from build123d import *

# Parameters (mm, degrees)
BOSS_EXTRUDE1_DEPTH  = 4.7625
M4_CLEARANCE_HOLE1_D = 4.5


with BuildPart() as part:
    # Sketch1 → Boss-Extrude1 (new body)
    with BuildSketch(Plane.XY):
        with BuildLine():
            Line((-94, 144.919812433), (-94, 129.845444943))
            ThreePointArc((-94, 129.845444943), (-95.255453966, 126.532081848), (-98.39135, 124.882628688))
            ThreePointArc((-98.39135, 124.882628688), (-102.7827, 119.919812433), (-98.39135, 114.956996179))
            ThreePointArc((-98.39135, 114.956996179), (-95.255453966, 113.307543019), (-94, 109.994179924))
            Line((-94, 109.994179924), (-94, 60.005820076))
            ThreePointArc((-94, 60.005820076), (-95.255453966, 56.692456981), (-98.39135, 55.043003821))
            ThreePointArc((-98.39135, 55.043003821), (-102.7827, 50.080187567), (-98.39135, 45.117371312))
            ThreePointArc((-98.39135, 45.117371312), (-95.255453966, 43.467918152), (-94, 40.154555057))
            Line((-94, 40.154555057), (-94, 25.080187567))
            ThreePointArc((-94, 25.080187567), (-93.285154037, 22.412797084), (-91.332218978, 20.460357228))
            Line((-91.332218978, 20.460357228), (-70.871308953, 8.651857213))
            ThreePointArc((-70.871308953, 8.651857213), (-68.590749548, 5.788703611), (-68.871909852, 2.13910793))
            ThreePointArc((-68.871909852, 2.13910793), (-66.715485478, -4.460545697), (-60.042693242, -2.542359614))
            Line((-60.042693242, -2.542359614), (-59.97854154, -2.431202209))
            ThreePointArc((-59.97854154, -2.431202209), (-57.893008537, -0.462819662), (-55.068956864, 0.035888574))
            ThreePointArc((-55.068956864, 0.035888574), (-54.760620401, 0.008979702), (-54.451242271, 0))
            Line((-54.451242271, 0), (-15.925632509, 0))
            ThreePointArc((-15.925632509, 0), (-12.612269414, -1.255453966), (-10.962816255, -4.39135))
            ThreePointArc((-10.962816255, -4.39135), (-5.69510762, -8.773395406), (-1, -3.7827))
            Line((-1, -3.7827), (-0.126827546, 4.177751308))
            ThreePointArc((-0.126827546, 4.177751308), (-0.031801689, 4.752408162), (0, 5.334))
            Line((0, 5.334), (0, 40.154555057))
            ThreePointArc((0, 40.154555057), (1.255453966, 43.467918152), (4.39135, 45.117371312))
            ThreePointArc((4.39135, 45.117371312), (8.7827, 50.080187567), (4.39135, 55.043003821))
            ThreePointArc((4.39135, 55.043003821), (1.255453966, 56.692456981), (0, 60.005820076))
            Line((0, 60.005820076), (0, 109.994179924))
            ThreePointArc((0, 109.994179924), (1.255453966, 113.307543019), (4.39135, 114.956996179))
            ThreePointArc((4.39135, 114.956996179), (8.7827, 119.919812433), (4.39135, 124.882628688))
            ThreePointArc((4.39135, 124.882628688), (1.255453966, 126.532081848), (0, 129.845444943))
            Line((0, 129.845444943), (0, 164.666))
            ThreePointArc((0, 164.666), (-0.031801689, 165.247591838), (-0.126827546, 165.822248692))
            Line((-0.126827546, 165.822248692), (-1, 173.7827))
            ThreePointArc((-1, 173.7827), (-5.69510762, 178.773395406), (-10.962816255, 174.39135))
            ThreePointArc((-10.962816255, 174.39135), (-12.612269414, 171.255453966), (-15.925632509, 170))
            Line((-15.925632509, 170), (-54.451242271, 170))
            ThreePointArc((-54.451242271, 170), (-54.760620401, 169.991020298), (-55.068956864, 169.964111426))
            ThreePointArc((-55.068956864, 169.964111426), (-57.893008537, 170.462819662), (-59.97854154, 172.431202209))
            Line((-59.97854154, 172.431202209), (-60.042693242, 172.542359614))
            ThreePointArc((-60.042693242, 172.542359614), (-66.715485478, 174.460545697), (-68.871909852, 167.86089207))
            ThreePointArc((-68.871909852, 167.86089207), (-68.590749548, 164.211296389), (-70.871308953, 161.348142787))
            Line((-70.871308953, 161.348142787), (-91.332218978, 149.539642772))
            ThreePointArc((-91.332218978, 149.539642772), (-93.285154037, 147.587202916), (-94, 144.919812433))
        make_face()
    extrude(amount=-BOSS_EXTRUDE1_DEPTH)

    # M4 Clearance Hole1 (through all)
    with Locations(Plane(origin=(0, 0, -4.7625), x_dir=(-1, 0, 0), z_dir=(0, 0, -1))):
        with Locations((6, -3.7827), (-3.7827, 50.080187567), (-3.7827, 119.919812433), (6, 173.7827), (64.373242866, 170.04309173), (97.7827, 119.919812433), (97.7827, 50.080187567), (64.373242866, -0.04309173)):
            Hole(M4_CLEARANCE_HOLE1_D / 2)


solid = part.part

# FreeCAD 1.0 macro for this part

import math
import FreeCAD as App
import Part
import Sketcher

doc = App.newDocument("Part")
body = doc.addObject("PartDesign::Body", "Body")

sketch1 = body.newObject("Sketcher::SketchObject", "Sketch")
sketch1.AttachmentSupport = (doc.getObject("XY_Plane"), [""])
sketch1.MapMode = "FlatFace"
sketch1.addGeometry([
    Part.LineSegment(App.Vector(-94, 144.92, 0), App.Vector(-94, 129.85, 0)),
    Part.ArcOfCircle(Part.Circle(App.Vector(-99, 129.85, 0), App.Vector(0, 0, 1), 5), math.radians(-83), math.radians(0)),
    Part.ArcOfCircle(Part.Circle(App.Vector(-97.78, 119.92, 0), App.Vector(0, 0, 1), 5), math.radians(97), math.radians(263)),
    Part.ArcOfCircle(Part.Circle(App.Vector(-99, 109.99, 0), App.Vector(0, 0, 1), 5), math.radians(0), math.radians(83)),
    Part.LineSegment(App.Vector(-94, 109.99, 0), App.Vector(-94, 60.01, 0)),
    Part.ArcOfCircle(Part.Circle(App.Vector(-99, 60.01, 0), App.Vector(0, 0, 1), 5), math.radians(-83), math.radians(0)),
    Part.ArcOfCircle(Part.Circle(App.Vector(-97.78, 50.08, 0), App.Vector(0, 0, 1), 5), math.radians(97), math.radians(263)),
    Part.ArcOfCircle(Part.Circle(App.Vector(-99, 40.15, 0), App.Vector(0, 0, 1), 5), math.radians(0), math.radians(83)),
    Part.LineSegment(App.Vector(-94, 40.15, 0), App.Vector(-94, 25.08, 0)),
    Part.ArcOfCircle(Part.Circle(App.Vector(-88.67, 25.08, 0), App.Vector(0, 0, 1), 5.33), math.radians(180), math.radians(240)),
    Part.LineSegment(App.Vector(-91.33, 20.46, 0), App.Vector(-70.87, 8.65, 0)),
    Part.ArcOfCircle(Part.Circle(App.Vector(-73.37, 4.32, 0), App.Vector(0, 0, 1), 5), math.radians(-26), math.radians(60)),
    Part.ArcOfCircle(Part.Circle(App.Vector(-64.37, -0.04, 0), App.Vector(0, 0, 1), 5), math.radians(154), math.radians(330)),
    Part.LineSegment(App.Vector(-60.04, -2.54, 0), App.Vector(-59.98, -2.43, 0)),
    Part.ArcOfCircle(Part.Circle(App.Vector(-55.65, -4.93, 0), App.Vector(0, 0, 1), 5), math.radians(83), math.radians(150)),
    Part.ArcOfCircle(Part.Circle(App.Vector(-54.45, 5.33, 0), App.Vector(0, 0, 1), 5.33), math.radians(-96.65), math.radians(-90)),
    Part.LineSegment(App.Vector(-54.45, 0, 0), App.Vector(-15.93, 0, 0)),
    Part.ArcOfCircle(Part.Circle(App.Vector(-15.93, -5, 0), App.Vector(0, 0, 1), 5), math.radians(7), math.radians(90)),
    Part.ArcOfCircle(Part.Circle(App.Vector(-6, -3.78, 0), App.Vector(0, 0, 1), 5), math.radians(-173), math.radians(0)),
    Part.LineSegment(App.Vector(-1, -3.78, 0), App.Vector(-0.13, 4.18, 0)),
    Part.ArcOfCircle(Part.Circle(App.Vector(-5.33, 5.33, 0), App.Vector(0, 0, 1), 5.33), math.radians(-12.52), math.radians(0)),
    Part.LineSegment(App.Vector(0, 5.33, 0), App.Vector(0, 40.15, 0)),
    Part.ArcOfCircle(Part.Circle(App.Vector(5, 40.15, 0), App.Vector(0, 0, 1), 5), math.radians(97), math.radians(180)),
    Part.ArcOfCircle(Part.Circle(App.Vector(3.78, 50.08, 0), App.Vector(0, 0, 1), 5), math.radians(-83), math.radians(83)),
    Part.ArcOfCircle(Part.Circle(App.Vector(5, 60.01, 0), App.Vector(0, 0, 1), 5), math.radians(180), math.radians(263)),
    Part.LineSegment(App.Vector(0, 60.01, 0), App.Vector(0, 109.99, 0)),
    Part.ArcOfCircle(Part.Circle(App.Vector(5, 109.99, 0), App.Vector(0, 0, 1), 5), math.radians(97), math.radians(180)),
    Part.ArcOfCircle(Part.Circle(App.Vector(3.78, 119.92, 0), App.Vector(0, 0, 1), 5), math.radians(-83), math.radians(83)),
    Part.ArcOfCircle(Part.Circle(App.Vector(5, 129.85, 0), App.Vector(0, 0, 1), 5), math.radians(180), math.radians(263)),
    Part.LineSegment(App.Vector(0, 129.85, 0), App.Vector(0, 164.67, 0)),
    Part.ArcOfCircle(Part.Circle(App.Vector(-5.33, 164.67, 0), App.Vector(0, 0, 1), 5.33), math.radians(0), math.radians(12.52)),
    Part.LineSegment(App.Vector(-0.13, 165.82, 0), App.Vector(-1, 173.78, 0)),
    Part.ArcOfCircle(Part.Circle(App.Vector(-6, 173.78, 0), App.Vector(0, 0, 1), 5), math.radians(0), math.radians(173)),
    Part.ArcOfCircle(Part.Circle(App.Vector(-15.93, 175, 0), App.Vector(0, 0, 1), 5), math.radians(-90), math.radians(-7)),
    Part.LineSegment(App.Vector(-15.93, 170, 0), App.Vector(-54.45, 170, 0)),
    Part.ArcOfCircle(Part.Circle(App.Vector(-54.45, 164.67, 0), App.Vector(0, 0, 1), 5.33), math.radians(90), math.radians(96.65)),
    Part.ArcOfCircle(Part.Circle(App.Vector(-55.65, 174.93, 0), App.Vector(0, 0, 1), 5), math.radians(-150), math.radians(-83)),
    Part.LineSegment(App.Vector(-59.98, 172.43, 0), App.Vector(-60.04, 172.54, 0)),
    Part.ArcOfCircle(Part.Circle(App.Vector(-64.37, 170.04, 0), App.Vector(0, 0, 1), 5), math.radians(30), math.radians(206)),
    Part.ArcOfCircle(Part.Circle(App.Vector(-73.37, 165.68, 0), App.Vector(0, 0, 1), 5), math.radians(-60), math.radians(26)),
    Part.LineSegment(App.Vector(-70.87, 161.35, 0), App.Vector(-91.33, 149.54, 0)),
    Part.ArcOfCircle(Part.Circle(App.Vector(-88.67, 144.92, 0), App.Vector(0, 0, 1), 5.33), math.radians(120), math.radians(180)),
], False)
sketch1.addConstraint([
    Sketcher.Constraint("Tangent", 0, 2, 1, 2),
    Sketcher.Constraint("Tangent", 1, 1, 2, 1),
    Sketcher.Constraint("Tangent", 2, 2, 3, 2),
    Sketcher.Constraint("Tangent", 3, 1, 4, 1),
    Sketcher.Constraint("Tangent", 4, 2, 5, 2),
    Sketcher.Constraint("Tangent", 5, 1, 6, 1),
    Sketcher.Constraint("Tangent", 6, 2, 7, 2),
    Sketcher.Constraint("Tangent", 7, 1, 8, 1),
    Sketcher.Constraint("Tangent", 8, 2, 9, 1),
    Sketcher.Constraint("Tangent", 9, 2, 10, 1),
    Sketcher.Constraint("Tangent", 10, 2, 11, 2),
    Sketcher.Constraint("Tangent", 11, 1, 12, 1),
    Sketcher.Constraint("Tangent", 12, 2, 13, 1),
    Sketcher.Constraint("Tangent", 13, 2, 14, 2),
    Sketcher.Constraint("Tangent", 14, 1, 15, 1),
    Sketcher.Constraint("Tangent", 15, 2, 16, 1),
    Sketcher.Constraint("Tangent", 16, 2, 17, 2),
    Sketcher.Constraint("Tangent", 17, 1, 18, 1),
    Sketcher.Constraint("Coincident", 18, 2, 19, 1),
    Sketcher.Constraint("Coincident", 19, 2, 20, 1),
    Sketcher.Constraint("Tangent", 20, 2, 21, 1),
    Sketcher.Constraint("Tangent", 21, 2, 22, 2),
    Sketcher.Constraint("Tangent", 22, 1, 23, 1),
    Sketcher.Constraint("Tangent", 23, 2, 24, 2),
    Sketcher.Constraint("Tangent", 24, 1, 25, 1),
    Sketcher.Constraint("Tangent", 25, 2, 26, 2),
    Sketcher.Constraint("Tangent", 26, 1, 27, 1),
    Sketcher.Constraint("Tangent", 27, 2, 28, 2),
    Sketcher.Constraint("Tangent", 28, 1, 29, 1),
    Sketcher.Constraint("Tangent", 29, 2, 30, 1),
    Sketcher.Constraint("Coincident", 30, 2, 31, 1),
    Sketcher.Constraint("Coincident", 31, 2, 32, 1),
    Sketcher.Constraint("Tangent", 32, 2, 33, 2),
    Sketcher.Constraint("Tangent", 33, 1, 34, 1),
    Sketcher.Constraint("Tangent", 34, 2, 35, 1),
    Sketcher.Constraint("Tangent", 35, 2, 36, 2),
    Sketcher.Constraint("Tangent", 36, 1, 37, 1),
    Sketcher.Constraint("Tangent", 37, 2, 38, 1),
    Sketcher.Constraint("Tangent", 38, 2, 39, 2),
    Sketcher.Constraint("Tangent", 39, 1, 40, 1),
    Sketcher.Constraint("Tangent", 40, 2, 41, 1),
    Sketcher.Constraint("Tangent", 41, 2, 0, 1),
    Sketcher.Constraint("Vertical", 0),
    Sketcher.Constraint("Vertical", 4),
    Sketcher.Constraint("Vertical", 8),
    Sketcher.Constraint("Horizontal", 16),
    Sketcher.Constraint("Vertical", 21),
    Sketcher.Constraint("Vertical", 25),
    Sketcher.Constraint("Vertical", 29),
    Sketcher.Constraint("Horizontal", 34),
    Sketcher.Constraint("Equal", 1, 2),
    Sketcher.Constraint("Equal", 2, 3),
    Sketcher.Constraint("Equal", 3, 5),
    Sketcher.Constraint("Equal", 5, 6),
    Sketcher.Constraint("Equal", 6, 7),
    Sketcher.Constraint("Equal", 7, 11),
    Sketcher.Constraint("Equal", 11, 12),
    Sketcher.Constraint("Equal", 12, 14),
    Sketcher.Constraint("Equal", 9, 15),
    Sketcher.Constraint("Equal", 14, 17),
    Sketcher.Constraint("Equal", 17, 18),
    Sketcher.Constraint("Equal", 15, 20),
    Sketcher.Constraint("Equal", 18, 22),
    Sketcher.Constraint("Equal", 22, 23),
    Sketcher.Constraint("Equal", 23, 24),
    Sketcher.Constraint("Equal", 24, 26),
    Sketcher.Constraint("Equal", 26, 27),
    Sketcher.Constraint("Equal", 27, 28),
    Sketcher.Constraint("Equal", 20, 30),
    Sketcher.Constraint("Equal", 28, 32),
    Sketcher.Constraint("Equal", 32, 33),
    Sketcher.Constraint("Equal", 30, 35),
    Sketcher.Constraint("Equal", 33, 36),
    Sketcher.Constraint("Equal", 36, 38),
    Sketcher.Constraint("Equal", 38, 39),
    Sketcher.Constraint("Equal", 35, 41),
    Sketcher.Constraint("PointOnObject", 15, 2, -1),
    Sketcher.Constraint("PointOnObject", 20, 2, -2),
    Sketcher.Constraint("PointOnObject", 24, 1, -2),
    Sketcher.Constraint("PointOnObject", 28, 1, -2),
    Sketcher.Constraint("Perpendicular", 10, 13),
    Sketcher.Constraint("Perpendicular", 37, 40),
    Sketcher.Constraint("Horizontal", 15, 3, 20, 3),
    Sketcher.Constraint("Horizontal", 7, 3, 22, 3),
    Sketcher.Constraint("Horizontal", 6, 3, 23, 3),
    Sketcher.Constraint("Horizontal", 5, 3, 24, 3),
    Sketcher.Constraint("Horizontal", 3, 3, 26, 3),
    Sketcher.Constraint("Horizontal", 2, 3, 27, 3),
    Sketcher.Constraint("Horizontal", 1, 3, 28, 3),
    Sketcher.Constraint("Horizontal", 30, 3, 35, 3),
    Sketcher.Constraint("Horizontal", 32, 3, 31, 2),
    Sketcher.Constraint("Vertical", 2, 3, 6, 3),
    Sketcher.Constraint("Vertical", 18, 3, 32, 3),
    Sketcher.Constraint("Vertical", 17, 3, 33, 3),
    Sketcher.Constraint("Vertical", 15, 3, 35, 3),
    Sketcher.Constraint("Vertical", 14, 3, 36, 3),
    Sketcher.Constraint("Vertical", 12, 3, 38, 3),
    Sketcher.Constraint("Vertical", 11, 3, 39, 3),
    Sketcher.Constraint("Vertical", 19, 2, 30, 2),
    Sketcher.Constraint("Vertical", 13, 2, 36, 1),
    Sketcher.Constraint("Equal", 0, 8),
    Sketcher.Constraint("Equal", 19, 31),
    Sketcher.Constraint("Radius", 1, 5.0),
    Sketcher.Constraint("DistanceX", 1, 3, -1, 1, 99.0),
    Sketcher.Constraint("DistanceX", 18, 3, -1, 1, 6.0),
    Sketcher.Constraint("DistanceY", -1, 1, 33, 3, 175.0),
    Sketcher.Constraint("Radius", 9, 5.334),
    Sketcher.Constraint("DistanceX", 16, 1, 16, 2, 38.52561),
    Sketcher.Constraint("DistanceY", 4, 2, 4, 1, 49.98836),
    Sketcher.Constraint("DistanceX", 2, 3, -1, 1, 97.7827),
    Sketcher.Constraint("DistanceY", 18, 3, -1, 1, 3.7827),
    Sketcher.Constraint("Distance", 10, 23.623918),
    Sketcher.Constraint("Distance", 13, 0.128341),
    Sketcher.Constraint("DistanceY", 0, 2, 0, 1, 15.074367),
    Sketcher.Constraint("DistanceY", 12, 3, -1, 1, 0.043092),
    Sketcher.Constraint("DistanceY", -1, 1, 19, 2, 4.177751),
])
pad1 = body.newObject("PartDesign::Pad", "Pad")
pad1.Profile = sketch1
pad1.Length = 4.7625
pad1.Reversed = True

sketch2 = body.newObject("Sketcher::SketchObject", "Sketch001")
sketch2.AttachmentSupport = (doc.getObject("XY_Plane"), [""])
sketch2.MapMode = "FlatFace"
sketch2.AttachmentOffset = App.Placement(App.Vector(0, 0, -4.7625), App.Rotation())
sketch2.addGeometry([
    Part.Circle(App.Vector(-6, -3.8, 0), App.Vector(0, 0, 1), 2.2),
    Part.Circle(App.Vector(3.8, 50.1, 0), App.Vector(0, 0, 1), 2.2),
    Part.Circle(App.Vector(3.8, 119.9, 0), App.Vector(0, 0, 1), 2.2),
    Part.Circle(App.Vector(-6, 173.8, 0), App.Vector(0, 0, 1), 2.2),
    Part.Circle(App.Vector(-64.4, 170, 0), App.Vector(0, 0, 1), 2.2),
    Part.Circle(App.Vector(-97.8, 119.9, 0), App.Vector(0, 0, 1), 2.2),
    Part.Circle(App.Vector(-97.8, 50.1, 0), App.Vector(0, 0, 1), 2.2),
    Part.Circle(App.Vector(-64.4, 0, 0), App.Vector(0, 0, 1), 2.2),
], False)
sketch2.addConstraint([
    Sketcher.Constraint("Equal", 0, 1),
    Sketcher.Constraint("Equal", 1, 2),
    Sketcher.Constraint("Equal", 2, 3),
    Sketcher.Constraint("Equal", 3, 4),
    Sketcher.Constraint("Equal", 4, 5),
    Sketcher.Constraint("Equal", 5, 6),
    Sketcher.Constraint("Equal", 6, 7),
    Sketcher.Constraint("Horizontal", 2, 3, 5, 3),
    Sketcher.Constraint("Horizontal", 1, 3, 6, 3),
    Sketcher.Constraint("Vertical", 1, 3, 2, 3),
    Sketcher.Constraint("Vertical", 0, 3, 3, 3),
    Sketcher.Constraint("Vertical", 5, 3, 6, 3),
    Sketcher.Constraint("Vertical", 4, 3, 7, 3),
    Sketcher.Constraint("Diameter", 0, 4.5),
    Sketcher.Constraint("DistanceX", 0, 3, -1, 1, 6.0),
    Sketcher.Constraint("DistanceY", 0, 3, -1, 1, 3.7827),
    Sketcher.Constraint("DistanceX", -1, 1, 1, 3, 3.7827),
    Sketcher.Constraint("DistanceY", -1, 1, 3, 3, 173.7827),
    Sketcher.Constraint("DistanceX", 5, 3, -1, 1, 97.7827),
    Sketcher.Constraint("DistanceY", -1, 1, 4, 3, 170.043092),
    Sketcher.Constraint("DistanceY", 7, 3, -1, 1, 0.043092),
    Sketcher.Constraint("DistanceY", 2, 3, 4, 3, 50.123279),
    Sketcher.Constraint("DistanceY", 7, 3, 6, 3, 50.123279),
    Sketcher.Constraint("DistanceX", 4, 3, -1, 1, 64.373243),
])
doc.recompute()
hole = body.newObject("PartDesign::Hole", "Hole")
hole.Profile = sketch2
hole.ThreadType = "None"
hole.Diameter = 4.5
hole.DepthType = "ThroughAll"
hole.Reversed = True

doc.recompute()
